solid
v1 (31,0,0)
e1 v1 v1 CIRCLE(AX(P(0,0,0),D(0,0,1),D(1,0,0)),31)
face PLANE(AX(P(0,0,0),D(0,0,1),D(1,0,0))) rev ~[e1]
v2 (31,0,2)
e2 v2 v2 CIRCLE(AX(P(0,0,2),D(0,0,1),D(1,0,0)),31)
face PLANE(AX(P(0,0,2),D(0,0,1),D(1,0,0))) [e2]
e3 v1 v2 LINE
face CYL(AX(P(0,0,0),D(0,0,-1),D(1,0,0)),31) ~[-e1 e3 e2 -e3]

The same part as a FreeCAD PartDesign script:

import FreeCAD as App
import Part
import Sketcher

V = App.Vector

doc = App.newDocument("Part")
body = doc.addObject("PartDesign::Body", "Body")

sketch1 = body.newObject("Sketcher::SketchObject", "Sketch")
sketch1.AttachmentSupport = (doc.getObject("XY_Plane"), [""])
sketch1.MapMode = "FlatFace"
sketch1.addGeometry(Part.Circle(V(0, 0, 0), V(0, 0, 1), 31), False)
sketch1.addConstraint([
    Sketcher.Constraint("Coincident", 0, 3, -1, 1),
    Sketcher.Constraint("Diameter", 0, 62.0),
])
pad1 = body.newObject("PartDesign::Pad", "Pad")
pad1.Profile = sketch1
pad1.Length = 2

doc.recompute()
